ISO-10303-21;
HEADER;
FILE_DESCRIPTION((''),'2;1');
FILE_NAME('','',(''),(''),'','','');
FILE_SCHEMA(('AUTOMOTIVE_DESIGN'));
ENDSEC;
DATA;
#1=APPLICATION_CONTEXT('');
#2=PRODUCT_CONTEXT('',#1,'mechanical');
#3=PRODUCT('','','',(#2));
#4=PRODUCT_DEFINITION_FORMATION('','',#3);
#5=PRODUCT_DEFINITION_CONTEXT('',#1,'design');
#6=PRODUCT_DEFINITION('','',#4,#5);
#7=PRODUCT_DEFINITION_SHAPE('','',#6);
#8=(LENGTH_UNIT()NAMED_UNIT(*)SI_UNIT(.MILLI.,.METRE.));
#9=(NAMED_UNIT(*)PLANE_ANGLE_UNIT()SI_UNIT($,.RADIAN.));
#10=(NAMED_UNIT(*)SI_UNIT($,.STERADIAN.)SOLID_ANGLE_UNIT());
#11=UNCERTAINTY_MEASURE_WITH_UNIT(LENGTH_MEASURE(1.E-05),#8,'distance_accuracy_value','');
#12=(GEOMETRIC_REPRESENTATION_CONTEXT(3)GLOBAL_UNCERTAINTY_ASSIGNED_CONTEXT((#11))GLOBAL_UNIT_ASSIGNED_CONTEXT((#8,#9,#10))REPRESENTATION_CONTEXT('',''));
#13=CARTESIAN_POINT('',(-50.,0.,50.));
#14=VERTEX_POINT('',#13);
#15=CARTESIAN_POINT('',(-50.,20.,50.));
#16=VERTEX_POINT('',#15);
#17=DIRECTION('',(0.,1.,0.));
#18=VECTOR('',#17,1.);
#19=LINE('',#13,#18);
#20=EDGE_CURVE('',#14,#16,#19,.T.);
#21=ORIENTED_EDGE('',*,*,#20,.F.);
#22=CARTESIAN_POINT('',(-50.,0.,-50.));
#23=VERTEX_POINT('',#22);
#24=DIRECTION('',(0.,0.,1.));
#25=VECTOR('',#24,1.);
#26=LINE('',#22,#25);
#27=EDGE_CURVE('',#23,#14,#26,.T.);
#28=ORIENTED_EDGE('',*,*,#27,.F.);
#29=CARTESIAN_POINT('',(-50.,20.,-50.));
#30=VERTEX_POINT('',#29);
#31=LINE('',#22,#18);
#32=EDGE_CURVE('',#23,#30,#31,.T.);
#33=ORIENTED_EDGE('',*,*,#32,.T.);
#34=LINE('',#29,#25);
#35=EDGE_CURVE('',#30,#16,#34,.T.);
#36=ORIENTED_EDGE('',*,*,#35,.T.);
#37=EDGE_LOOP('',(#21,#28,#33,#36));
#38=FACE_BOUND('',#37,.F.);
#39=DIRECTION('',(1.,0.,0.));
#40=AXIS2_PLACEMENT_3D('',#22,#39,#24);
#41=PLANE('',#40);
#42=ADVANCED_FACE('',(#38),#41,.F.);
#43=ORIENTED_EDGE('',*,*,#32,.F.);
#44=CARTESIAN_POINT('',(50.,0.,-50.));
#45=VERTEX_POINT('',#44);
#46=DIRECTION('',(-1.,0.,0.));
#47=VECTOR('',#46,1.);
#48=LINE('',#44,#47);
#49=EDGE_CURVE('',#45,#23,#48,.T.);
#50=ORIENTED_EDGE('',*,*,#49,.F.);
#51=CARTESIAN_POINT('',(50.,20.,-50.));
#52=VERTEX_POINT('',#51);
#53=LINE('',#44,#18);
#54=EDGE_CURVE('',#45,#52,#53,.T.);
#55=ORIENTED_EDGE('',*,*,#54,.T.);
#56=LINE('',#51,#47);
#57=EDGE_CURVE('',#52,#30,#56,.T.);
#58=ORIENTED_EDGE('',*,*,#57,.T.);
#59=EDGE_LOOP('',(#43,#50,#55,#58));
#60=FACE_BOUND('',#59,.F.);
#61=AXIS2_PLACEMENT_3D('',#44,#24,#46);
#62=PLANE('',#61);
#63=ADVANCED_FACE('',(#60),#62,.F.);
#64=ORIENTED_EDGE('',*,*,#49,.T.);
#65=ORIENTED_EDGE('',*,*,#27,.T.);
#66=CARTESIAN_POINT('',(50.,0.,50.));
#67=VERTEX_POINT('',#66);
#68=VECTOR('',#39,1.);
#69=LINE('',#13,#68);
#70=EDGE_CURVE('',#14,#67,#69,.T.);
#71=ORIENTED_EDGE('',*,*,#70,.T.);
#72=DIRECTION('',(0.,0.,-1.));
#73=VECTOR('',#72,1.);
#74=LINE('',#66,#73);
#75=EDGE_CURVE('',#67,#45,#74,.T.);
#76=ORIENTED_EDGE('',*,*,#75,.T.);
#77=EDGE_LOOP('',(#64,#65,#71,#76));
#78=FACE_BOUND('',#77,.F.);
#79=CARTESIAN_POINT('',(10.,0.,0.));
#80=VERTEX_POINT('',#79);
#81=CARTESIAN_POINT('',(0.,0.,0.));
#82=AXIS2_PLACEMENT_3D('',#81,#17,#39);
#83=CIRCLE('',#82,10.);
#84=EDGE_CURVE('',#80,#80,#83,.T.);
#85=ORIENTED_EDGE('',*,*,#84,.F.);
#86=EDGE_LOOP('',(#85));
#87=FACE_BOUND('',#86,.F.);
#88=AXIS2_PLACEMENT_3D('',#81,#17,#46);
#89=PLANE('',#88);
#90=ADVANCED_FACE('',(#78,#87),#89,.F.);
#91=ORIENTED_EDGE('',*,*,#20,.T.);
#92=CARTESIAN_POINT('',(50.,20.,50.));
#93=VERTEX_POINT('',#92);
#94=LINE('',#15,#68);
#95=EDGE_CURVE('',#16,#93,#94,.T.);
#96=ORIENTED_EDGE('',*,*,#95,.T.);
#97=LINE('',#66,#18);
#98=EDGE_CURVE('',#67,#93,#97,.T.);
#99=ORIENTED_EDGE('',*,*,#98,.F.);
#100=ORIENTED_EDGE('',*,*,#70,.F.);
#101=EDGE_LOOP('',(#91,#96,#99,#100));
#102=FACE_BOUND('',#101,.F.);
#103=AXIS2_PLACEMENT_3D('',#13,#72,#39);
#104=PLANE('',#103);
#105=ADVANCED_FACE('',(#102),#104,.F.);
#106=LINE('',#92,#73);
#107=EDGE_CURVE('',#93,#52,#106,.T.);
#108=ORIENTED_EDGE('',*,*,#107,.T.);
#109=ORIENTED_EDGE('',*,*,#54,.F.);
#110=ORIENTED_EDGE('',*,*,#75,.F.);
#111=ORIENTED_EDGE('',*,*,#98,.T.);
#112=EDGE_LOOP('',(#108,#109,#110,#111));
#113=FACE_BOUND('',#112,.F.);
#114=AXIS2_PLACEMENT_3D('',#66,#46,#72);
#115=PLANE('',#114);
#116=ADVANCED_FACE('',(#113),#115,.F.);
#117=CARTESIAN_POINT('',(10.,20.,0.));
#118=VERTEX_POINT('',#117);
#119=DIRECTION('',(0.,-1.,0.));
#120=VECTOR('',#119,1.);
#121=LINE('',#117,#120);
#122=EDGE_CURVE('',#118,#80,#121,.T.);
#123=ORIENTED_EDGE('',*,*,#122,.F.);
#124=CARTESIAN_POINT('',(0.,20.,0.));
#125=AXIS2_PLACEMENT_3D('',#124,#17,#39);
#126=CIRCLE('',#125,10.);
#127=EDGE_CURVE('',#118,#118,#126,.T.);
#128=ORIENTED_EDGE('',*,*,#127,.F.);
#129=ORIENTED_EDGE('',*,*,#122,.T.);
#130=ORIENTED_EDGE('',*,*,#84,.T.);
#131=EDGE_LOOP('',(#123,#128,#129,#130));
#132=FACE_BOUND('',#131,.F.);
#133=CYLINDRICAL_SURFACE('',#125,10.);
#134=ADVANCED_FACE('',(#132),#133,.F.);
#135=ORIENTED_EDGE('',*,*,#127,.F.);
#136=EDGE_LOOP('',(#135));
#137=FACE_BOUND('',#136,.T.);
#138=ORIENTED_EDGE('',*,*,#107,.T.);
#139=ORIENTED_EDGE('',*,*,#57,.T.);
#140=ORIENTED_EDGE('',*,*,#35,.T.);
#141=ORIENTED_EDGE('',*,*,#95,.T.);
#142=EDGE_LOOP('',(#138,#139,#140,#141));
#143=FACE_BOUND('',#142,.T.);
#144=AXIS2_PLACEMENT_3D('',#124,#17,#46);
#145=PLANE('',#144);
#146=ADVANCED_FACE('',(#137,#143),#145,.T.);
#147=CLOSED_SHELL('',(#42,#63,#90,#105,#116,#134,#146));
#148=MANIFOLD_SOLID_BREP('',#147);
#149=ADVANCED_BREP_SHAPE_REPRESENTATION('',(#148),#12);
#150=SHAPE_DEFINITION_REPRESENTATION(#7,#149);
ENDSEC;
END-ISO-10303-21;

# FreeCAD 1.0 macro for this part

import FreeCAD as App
import Part
import Sketcher

V = App.Vector
Q = App.Units.Quantity


def add_polygon(sketch, points):
    """Adds a closed chain of lines whose ends are joined by coincident constraints."""
    first, n = sketch.GeometryCount, len(points)
    for a, b in zip(points, points[1:] + points[:1]):
        sketch.addGeometry(Part.LineSegment(App.Vector(*a, 0), App.Vector(*b, 0)), False)
    for i in range(n):
        sketch.addConstraint(Sketcher.Constraint("Coincident", first + i, 2, first + (i + 1) % n, 1))

doc = App.newDocument("Part")
body = doc.addObject("PartDesign::Body", "Body")

# Sketch on XZ plane
sketch1 = doc.addObject("Sketcher::SketchObject", "Sketch")
body.addObject(sketch1)
sketch1.AttachmentSupport = (doc.XZ_Plane, [""])
sketch1.MapMode = "FlatFace"
add_polygon(sketch1, [(-50, -50), (-50, 50), (50, 50), (50, -50)])  # lines 0-3
sketch1.addConstraint([
    Sketcher.Constraint("Vertical", 0),
    Sketcher.Constraint("Horizontal", 1),
    Sketcher.Constraint("Vertical", 2),
    Sketcher.Constraint("Horizontal", 3),
    Sketcher.Constraint("Symmetric", 0, 2, 2, 2, -1, 1),
    Sketcher.Constraint("Equal", 3, 0),
    Sketcher.Constraint("DistanceX", 1, 1, 1, 2, Q("3.937 in")),
])
pad1 = doc.addObject("PartDesign::Pad", "Pad")
body.addObject(pad1)
pad1.Profile = sketch1
pad1.Length = Q("0.7874016 in")
pad1.Reversed = True

# Sketch on XZ plane
sketch2 = doc.addObject("Sketcher::SketchObject", "Sketch001")
body.addObject(sketch2)
sketch2.AttachmentSupport = (doc.XZ_Plane, [""])
sketch2.MapMode = "FlatFace"
sketch2.AttachmentOffset = App.Placement(V(0, 0, -0.7874016 * 25.4), App.Rotation())
sketch2.addGeometry(Part.Circle(V(0, 0, 0), V(0, 0, 1), 10), False)
sketch2.addConstraint([
    Sketcher.Constraint("Coincident", 0, 3, -1, 1),
    Sketcher.Constraint("Diameter", 0, Q("0.7874 in")),
])
pocket1 = doc.addObject("PartDesign::Pocket", "Pocket")
body.addObject(pocket1)
pocket1.Profile = sketch2
pocket1.Length = Q("0.7874016 in")
pocket1.Reversed = True

doc.recompute()
